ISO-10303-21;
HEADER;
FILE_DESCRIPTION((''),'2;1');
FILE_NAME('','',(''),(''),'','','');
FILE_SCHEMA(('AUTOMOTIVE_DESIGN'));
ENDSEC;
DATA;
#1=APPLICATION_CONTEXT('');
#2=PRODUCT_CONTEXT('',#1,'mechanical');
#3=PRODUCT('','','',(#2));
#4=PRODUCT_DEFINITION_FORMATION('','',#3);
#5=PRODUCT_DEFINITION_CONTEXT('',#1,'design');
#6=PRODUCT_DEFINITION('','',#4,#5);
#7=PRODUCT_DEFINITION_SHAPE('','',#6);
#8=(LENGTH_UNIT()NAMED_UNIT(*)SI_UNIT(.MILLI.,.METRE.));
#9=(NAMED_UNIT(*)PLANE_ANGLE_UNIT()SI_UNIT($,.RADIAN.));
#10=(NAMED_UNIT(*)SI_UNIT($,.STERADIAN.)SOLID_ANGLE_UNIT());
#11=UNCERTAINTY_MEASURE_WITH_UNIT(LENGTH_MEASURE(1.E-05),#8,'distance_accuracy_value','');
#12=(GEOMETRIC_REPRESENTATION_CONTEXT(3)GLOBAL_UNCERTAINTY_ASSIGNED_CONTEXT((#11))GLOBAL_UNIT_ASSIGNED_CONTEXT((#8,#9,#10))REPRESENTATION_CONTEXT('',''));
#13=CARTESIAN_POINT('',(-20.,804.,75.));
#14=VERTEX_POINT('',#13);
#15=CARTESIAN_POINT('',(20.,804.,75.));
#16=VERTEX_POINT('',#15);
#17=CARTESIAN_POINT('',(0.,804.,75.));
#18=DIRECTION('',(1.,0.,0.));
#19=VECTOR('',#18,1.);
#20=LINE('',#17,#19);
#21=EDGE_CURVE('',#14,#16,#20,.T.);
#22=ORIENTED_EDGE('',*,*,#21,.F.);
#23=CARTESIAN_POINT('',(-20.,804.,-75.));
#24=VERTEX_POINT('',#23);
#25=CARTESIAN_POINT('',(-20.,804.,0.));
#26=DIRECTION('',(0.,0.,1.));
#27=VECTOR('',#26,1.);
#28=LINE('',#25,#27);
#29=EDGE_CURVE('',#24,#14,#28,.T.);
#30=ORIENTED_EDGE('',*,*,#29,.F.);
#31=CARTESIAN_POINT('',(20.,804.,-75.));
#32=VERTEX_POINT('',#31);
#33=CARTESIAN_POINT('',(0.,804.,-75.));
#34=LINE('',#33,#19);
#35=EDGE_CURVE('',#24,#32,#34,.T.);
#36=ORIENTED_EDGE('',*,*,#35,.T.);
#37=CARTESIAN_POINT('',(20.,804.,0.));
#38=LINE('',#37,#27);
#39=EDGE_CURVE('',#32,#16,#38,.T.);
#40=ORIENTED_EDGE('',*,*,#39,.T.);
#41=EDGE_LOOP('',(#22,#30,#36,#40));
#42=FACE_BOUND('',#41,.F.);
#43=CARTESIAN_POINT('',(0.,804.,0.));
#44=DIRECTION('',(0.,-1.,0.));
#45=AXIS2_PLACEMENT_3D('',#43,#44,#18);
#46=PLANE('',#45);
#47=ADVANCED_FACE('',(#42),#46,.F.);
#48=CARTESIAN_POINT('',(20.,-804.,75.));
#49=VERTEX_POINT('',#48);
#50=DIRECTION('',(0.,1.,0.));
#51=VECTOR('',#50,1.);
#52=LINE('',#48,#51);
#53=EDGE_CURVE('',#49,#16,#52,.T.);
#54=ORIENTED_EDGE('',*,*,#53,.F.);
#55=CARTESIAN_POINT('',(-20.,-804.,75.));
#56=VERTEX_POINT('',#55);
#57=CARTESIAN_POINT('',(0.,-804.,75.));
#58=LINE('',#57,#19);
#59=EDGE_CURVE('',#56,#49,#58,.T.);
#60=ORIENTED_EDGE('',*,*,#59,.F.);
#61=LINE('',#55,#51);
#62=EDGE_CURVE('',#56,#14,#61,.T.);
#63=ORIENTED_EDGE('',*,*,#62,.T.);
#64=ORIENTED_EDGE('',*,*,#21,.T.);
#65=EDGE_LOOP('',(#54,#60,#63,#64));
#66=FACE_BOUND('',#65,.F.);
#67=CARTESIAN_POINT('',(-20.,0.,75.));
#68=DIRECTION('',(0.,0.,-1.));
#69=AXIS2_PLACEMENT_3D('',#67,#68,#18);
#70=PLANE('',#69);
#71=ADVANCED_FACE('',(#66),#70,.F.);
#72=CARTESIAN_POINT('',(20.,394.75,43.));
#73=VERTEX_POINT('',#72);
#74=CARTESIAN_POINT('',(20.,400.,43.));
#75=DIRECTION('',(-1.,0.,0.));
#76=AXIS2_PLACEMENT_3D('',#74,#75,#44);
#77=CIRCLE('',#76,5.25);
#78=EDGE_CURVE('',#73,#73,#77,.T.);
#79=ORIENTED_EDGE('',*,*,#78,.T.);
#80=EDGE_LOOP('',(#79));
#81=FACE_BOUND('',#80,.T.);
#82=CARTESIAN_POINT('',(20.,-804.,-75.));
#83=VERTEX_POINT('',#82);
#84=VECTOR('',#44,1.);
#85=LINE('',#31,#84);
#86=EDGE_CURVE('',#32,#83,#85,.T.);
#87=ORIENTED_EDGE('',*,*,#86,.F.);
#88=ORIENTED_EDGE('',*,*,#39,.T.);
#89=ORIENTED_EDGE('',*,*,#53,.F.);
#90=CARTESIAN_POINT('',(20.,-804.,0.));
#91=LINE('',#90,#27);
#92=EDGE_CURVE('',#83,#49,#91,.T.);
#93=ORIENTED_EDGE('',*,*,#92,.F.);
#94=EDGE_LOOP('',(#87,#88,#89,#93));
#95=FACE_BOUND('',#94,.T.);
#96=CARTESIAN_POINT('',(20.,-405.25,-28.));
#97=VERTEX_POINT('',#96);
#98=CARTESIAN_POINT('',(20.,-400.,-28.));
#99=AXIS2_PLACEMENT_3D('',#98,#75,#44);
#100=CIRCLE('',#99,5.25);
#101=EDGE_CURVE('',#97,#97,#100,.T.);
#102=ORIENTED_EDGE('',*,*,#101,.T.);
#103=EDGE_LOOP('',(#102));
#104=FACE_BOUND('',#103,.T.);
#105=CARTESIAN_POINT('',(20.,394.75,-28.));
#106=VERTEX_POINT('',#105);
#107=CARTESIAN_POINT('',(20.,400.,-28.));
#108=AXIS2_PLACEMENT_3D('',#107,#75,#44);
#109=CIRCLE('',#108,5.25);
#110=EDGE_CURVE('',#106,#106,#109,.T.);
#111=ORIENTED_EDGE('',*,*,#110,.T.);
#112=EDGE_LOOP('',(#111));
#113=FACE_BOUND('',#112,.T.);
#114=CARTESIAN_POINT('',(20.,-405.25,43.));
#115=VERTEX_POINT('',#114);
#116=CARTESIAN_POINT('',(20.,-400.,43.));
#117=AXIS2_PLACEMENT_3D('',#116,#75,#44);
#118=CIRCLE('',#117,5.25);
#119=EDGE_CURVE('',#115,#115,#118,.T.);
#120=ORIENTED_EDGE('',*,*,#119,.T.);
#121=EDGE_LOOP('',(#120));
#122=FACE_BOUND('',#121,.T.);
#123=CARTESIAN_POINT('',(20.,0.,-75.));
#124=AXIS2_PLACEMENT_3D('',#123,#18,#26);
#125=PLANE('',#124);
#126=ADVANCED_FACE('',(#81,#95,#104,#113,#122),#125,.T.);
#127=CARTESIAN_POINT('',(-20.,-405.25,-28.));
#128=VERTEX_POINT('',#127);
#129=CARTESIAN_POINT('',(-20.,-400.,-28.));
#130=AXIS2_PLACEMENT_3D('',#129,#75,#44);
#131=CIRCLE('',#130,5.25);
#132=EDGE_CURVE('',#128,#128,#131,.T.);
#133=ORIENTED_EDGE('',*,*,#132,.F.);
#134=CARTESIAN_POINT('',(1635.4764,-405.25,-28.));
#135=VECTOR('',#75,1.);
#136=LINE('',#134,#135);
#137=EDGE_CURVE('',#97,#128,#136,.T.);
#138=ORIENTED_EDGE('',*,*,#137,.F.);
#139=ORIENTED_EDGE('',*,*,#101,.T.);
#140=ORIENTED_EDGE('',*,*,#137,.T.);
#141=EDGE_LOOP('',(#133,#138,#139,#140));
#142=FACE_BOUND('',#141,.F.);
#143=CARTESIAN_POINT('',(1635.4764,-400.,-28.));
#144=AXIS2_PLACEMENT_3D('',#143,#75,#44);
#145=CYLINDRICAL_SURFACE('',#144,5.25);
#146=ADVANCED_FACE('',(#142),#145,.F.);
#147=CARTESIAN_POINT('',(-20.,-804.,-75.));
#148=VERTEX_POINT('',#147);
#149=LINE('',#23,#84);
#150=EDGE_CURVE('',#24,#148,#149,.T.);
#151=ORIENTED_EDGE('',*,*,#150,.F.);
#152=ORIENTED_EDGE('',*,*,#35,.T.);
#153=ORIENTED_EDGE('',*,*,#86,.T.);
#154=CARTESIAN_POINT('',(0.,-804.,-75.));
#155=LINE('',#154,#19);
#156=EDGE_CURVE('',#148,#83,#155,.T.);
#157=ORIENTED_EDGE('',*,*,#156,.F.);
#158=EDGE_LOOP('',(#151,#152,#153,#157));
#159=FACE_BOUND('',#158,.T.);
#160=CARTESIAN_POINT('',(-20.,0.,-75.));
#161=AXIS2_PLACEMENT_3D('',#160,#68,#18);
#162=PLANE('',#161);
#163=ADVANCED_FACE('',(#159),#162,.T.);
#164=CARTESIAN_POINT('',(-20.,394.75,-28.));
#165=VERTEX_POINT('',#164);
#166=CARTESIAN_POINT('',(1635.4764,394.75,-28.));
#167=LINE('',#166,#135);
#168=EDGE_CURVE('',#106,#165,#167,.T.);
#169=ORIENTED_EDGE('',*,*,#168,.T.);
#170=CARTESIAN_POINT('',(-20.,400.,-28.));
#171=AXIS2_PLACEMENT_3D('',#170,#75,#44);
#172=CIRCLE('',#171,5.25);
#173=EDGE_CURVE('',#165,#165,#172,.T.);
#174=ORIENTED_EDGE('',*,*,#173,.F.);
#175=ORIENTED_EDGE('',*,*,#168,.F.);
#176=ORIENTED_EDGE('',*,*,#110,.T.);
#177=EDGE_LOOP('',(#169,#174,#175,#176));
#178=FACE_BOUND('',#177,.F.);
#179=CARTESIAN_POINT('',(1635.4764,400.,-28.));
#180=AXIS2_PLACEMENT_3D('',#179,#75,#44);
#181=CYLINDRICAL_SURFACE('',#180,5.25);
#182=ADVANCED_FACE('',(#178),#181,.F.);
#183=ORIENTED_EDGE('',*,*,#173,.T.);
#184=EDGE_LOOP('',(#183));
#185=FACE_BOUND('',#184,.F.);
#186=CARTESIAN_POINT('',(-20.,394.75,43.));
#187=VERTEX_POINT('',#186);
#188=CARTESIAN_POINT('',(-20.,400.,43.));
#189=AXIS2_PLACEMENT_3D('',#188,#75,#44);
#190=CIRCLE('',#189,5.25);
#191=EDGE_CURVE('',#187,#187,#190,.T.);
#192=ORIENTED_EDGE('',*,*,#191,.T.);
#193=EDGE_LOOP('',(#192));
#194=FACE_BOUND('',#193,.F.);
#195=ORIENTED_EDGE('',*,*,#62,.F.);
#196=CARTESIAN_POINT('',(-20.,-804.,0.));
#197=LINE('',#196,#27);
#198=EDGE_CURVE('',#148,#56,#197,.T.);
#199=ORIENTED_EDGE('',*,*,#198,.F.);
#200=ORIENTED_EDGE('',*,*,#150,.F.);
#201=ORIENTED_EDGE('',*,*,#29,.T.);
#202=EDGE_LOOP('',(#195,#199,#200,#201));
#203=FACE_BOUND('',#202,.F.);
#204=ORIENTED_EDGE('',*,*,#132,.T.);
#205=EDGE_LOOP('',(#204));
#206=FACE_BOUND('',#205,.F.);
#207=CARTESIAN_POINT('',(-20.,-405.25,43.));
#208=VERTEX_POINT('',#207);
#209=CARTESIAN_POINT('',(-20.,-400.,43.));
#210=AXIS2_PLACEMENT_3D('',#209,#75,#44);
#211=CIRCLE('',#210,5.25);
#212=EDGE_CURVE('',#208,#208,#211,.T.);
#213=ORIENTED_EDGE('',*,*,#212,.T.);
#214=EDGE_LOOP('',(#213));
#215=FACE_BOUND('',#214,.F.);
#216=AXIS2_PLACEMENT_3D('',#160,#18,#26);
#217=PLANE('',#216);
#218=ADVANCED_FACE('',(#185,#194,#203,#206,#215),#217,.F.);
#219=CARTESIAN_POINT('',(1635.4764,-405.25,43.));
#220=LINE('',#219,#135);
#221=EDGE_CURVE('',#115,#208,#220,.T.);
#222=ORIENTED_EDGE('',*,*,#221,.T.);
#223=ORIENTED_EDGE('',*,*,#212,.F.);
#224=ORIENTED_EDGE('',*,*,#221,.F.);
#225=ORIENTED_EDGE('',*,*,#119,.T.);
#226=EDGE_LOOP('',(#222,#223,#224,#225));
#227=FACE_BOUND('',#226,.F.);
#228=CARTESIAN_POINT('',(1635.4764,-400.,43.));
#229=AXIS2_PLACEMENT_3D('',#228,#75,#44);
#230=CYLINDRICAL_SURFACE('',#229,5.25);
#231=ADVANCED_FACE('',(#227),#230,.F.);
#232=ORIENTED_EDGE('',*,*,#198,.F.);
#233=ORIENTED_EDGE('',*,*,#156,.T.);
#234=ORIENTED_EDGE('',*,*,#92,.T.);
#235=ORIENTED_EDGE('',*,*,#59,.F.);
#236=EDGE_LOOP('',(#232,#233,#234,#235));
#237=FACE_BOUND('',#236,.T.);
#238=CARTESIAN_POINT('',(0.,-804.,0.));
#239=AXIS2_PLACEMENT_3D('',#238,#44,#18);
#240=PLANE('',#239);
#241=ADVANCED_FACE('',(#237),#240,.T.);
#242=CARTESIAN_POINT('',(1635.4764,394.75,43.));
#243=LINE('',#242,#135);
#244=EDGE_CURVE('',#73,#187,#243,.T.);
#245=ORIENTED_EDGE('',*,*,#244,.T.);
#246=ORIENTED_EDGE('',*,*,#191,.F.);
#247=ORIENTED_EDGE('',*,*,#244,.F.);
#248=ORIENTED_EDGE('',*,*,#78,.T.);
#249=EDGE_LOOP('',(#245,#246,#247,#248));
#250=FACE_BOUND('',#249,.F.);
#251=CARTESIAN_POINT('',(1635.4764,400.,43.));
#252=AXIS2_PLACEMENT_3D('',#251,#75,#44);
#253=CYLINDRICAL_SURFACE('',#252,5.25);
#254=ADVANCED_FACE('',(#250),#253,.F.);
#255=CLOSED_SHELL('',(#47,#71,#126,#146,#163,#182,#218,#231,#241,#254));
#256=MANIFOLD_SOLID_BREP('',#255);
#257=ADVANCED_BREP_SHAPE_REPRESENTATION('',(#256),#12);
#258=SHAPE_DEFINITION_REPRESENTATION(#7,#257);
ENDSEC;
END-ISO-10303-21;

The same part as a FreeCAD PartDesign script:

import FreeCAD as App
import Part
import Sketcher

V = App.Vector

doc = App.newDocument("Part")
body = doc.addObject("PartDesign::Body", "Body")

# Sketch on XZ plane
sketch1 = doc.addObject("Sketcher::SketchObject", "Sketch")
body.addObject(sketch1)
sketch1.AttachmentSupport = (doc.XZ_Plane, [""])
sketch1.MapMode = "FlatFace"
sketch1.addGeometry(Part.LineSegment(V(-20, 75, 0), V(-20, -75, 0)), False)
sketch1.addGeometry(Part.LineSegment(V(-20, -75, 0), V(20, -75, 0)), False)
sketch1.addGeometry(Part.LineSegment(V(20, -75, 0), V(20, 75, 0)), False)
sketch1.addGeometry(Part.LineSegment(V(20, 75, 0), V(-20, 75, 0)), False)
sketch1.addConstraint(Sketcher.Constraint("Coincident", 0, 2, 1, 1))
sketch1.addConstraint(Sketcher.Constraint("Coincident", 1, 2, 2, 1))
sketch1.addConstraint(Sketcher.Constraint("Coincident", 2, 2, 3, 1))
sketch1.addConstraint(Sketcher.Constraint("Coincident", 3, 2, 0, 1))
sketch1.addConstraint(Sketcher.Constraint("Vertical", 0))
sketch1.addConstraint(Sketcher.Constraint("Horizontal", 1))
sketch1.addConstraint(Sketcher.Constraint("Vertical", 2))
sketch1.addConstraint(Sketcher.Constraint("Horizontal", 3))
sketch1.addConstraint(Sketcher.Constraint("Symmetric", 0, 2, 2, 2, -1, 1))
sketch1.addConstraint(Sketcher.Constraint("DistanceX", 1, 1, 1, 2, 40.0))
sketch1.addConstraint(Sketcher.Constraint("DistanceY", 0, 2, 0, 1, 150.0))
pad1 = doc.addObject("PartDesign::Pad", "Pad")
body.addObject(pad1)
pad1.Profile = sketch1
pad1.Length = 1608
pad1.Midplane = True

# Sketch on YZ plane
sketch2 = doc.addObject("Sketcher::SketchObject", "Sketch001")
body.addObject(sketch2)
sketch2.AttachmentSupport = (doc.YZ_Plane, [""])
sketch2.MapMode = "FlatFace"
sketch2.AttachmentOffset = App.Placement(V(0, 0, 20), App.Rotation())
sketch2.addGeometry(Part.Circle(V(-400, 43, 0), V(0, 0, 1), 5), False)
sketch2.addGeometry(Part.Circle(V(-400, -28, 0), V(0, 0, 1), 5), False)
sketch2.addGeometry(Part.Circle(V(400, -28, 0), V(0, 0, 1), 5), False)
sketch2.addGeometry(Part.Circle(V(400, 43, 0), V(0, 0, 1), 5), False)
sketch2.addConstraint(Sketcher.Constraint("Equal", 0, 1))
sketch2.addConstraint(Sketcher.Constraint("Equal", 1, 2))
sketch2.addConstraint(Sketcher.Constraint("Equal", 2, 3))
sketch2.addConstraint(Sketcher.Constraint("Symmetric", 1, 3, 2, 3, -2))
sketch2.addConstraint(Sketcher.Constraint("Symmetric", 0, 3, 3, 3, -2))
sketch2.addConstraint(Sketcher.Constraint("Vertical", 0, 3, 1, 3))
sketch2.addConstraint(Sketcher.Constraint("Diameter", 0, 10.5))
sketch2.addConstraint(Sketcher.Constraint("DistanceX", 0, 3, -1, 1, 400.0))
sketch2.addConstraint(Sketcher.Constraint("DistanceY", -1, 1, 0, 3, 43.0))
sketch2.addConstraint(Sketcher.Constraint("DistanceY", 1, 3, -1, 1, 28.0))
doc.recompute()
hole = doc.addObject("PartDesign::Hole", "Hole")
body.addObject(hole)
hole.Profile = sketch2
hole.ThreadType = "None"
hole.Diameter = 10.5
hole.DepthType = "ThroughAll"

doc.recompute()
